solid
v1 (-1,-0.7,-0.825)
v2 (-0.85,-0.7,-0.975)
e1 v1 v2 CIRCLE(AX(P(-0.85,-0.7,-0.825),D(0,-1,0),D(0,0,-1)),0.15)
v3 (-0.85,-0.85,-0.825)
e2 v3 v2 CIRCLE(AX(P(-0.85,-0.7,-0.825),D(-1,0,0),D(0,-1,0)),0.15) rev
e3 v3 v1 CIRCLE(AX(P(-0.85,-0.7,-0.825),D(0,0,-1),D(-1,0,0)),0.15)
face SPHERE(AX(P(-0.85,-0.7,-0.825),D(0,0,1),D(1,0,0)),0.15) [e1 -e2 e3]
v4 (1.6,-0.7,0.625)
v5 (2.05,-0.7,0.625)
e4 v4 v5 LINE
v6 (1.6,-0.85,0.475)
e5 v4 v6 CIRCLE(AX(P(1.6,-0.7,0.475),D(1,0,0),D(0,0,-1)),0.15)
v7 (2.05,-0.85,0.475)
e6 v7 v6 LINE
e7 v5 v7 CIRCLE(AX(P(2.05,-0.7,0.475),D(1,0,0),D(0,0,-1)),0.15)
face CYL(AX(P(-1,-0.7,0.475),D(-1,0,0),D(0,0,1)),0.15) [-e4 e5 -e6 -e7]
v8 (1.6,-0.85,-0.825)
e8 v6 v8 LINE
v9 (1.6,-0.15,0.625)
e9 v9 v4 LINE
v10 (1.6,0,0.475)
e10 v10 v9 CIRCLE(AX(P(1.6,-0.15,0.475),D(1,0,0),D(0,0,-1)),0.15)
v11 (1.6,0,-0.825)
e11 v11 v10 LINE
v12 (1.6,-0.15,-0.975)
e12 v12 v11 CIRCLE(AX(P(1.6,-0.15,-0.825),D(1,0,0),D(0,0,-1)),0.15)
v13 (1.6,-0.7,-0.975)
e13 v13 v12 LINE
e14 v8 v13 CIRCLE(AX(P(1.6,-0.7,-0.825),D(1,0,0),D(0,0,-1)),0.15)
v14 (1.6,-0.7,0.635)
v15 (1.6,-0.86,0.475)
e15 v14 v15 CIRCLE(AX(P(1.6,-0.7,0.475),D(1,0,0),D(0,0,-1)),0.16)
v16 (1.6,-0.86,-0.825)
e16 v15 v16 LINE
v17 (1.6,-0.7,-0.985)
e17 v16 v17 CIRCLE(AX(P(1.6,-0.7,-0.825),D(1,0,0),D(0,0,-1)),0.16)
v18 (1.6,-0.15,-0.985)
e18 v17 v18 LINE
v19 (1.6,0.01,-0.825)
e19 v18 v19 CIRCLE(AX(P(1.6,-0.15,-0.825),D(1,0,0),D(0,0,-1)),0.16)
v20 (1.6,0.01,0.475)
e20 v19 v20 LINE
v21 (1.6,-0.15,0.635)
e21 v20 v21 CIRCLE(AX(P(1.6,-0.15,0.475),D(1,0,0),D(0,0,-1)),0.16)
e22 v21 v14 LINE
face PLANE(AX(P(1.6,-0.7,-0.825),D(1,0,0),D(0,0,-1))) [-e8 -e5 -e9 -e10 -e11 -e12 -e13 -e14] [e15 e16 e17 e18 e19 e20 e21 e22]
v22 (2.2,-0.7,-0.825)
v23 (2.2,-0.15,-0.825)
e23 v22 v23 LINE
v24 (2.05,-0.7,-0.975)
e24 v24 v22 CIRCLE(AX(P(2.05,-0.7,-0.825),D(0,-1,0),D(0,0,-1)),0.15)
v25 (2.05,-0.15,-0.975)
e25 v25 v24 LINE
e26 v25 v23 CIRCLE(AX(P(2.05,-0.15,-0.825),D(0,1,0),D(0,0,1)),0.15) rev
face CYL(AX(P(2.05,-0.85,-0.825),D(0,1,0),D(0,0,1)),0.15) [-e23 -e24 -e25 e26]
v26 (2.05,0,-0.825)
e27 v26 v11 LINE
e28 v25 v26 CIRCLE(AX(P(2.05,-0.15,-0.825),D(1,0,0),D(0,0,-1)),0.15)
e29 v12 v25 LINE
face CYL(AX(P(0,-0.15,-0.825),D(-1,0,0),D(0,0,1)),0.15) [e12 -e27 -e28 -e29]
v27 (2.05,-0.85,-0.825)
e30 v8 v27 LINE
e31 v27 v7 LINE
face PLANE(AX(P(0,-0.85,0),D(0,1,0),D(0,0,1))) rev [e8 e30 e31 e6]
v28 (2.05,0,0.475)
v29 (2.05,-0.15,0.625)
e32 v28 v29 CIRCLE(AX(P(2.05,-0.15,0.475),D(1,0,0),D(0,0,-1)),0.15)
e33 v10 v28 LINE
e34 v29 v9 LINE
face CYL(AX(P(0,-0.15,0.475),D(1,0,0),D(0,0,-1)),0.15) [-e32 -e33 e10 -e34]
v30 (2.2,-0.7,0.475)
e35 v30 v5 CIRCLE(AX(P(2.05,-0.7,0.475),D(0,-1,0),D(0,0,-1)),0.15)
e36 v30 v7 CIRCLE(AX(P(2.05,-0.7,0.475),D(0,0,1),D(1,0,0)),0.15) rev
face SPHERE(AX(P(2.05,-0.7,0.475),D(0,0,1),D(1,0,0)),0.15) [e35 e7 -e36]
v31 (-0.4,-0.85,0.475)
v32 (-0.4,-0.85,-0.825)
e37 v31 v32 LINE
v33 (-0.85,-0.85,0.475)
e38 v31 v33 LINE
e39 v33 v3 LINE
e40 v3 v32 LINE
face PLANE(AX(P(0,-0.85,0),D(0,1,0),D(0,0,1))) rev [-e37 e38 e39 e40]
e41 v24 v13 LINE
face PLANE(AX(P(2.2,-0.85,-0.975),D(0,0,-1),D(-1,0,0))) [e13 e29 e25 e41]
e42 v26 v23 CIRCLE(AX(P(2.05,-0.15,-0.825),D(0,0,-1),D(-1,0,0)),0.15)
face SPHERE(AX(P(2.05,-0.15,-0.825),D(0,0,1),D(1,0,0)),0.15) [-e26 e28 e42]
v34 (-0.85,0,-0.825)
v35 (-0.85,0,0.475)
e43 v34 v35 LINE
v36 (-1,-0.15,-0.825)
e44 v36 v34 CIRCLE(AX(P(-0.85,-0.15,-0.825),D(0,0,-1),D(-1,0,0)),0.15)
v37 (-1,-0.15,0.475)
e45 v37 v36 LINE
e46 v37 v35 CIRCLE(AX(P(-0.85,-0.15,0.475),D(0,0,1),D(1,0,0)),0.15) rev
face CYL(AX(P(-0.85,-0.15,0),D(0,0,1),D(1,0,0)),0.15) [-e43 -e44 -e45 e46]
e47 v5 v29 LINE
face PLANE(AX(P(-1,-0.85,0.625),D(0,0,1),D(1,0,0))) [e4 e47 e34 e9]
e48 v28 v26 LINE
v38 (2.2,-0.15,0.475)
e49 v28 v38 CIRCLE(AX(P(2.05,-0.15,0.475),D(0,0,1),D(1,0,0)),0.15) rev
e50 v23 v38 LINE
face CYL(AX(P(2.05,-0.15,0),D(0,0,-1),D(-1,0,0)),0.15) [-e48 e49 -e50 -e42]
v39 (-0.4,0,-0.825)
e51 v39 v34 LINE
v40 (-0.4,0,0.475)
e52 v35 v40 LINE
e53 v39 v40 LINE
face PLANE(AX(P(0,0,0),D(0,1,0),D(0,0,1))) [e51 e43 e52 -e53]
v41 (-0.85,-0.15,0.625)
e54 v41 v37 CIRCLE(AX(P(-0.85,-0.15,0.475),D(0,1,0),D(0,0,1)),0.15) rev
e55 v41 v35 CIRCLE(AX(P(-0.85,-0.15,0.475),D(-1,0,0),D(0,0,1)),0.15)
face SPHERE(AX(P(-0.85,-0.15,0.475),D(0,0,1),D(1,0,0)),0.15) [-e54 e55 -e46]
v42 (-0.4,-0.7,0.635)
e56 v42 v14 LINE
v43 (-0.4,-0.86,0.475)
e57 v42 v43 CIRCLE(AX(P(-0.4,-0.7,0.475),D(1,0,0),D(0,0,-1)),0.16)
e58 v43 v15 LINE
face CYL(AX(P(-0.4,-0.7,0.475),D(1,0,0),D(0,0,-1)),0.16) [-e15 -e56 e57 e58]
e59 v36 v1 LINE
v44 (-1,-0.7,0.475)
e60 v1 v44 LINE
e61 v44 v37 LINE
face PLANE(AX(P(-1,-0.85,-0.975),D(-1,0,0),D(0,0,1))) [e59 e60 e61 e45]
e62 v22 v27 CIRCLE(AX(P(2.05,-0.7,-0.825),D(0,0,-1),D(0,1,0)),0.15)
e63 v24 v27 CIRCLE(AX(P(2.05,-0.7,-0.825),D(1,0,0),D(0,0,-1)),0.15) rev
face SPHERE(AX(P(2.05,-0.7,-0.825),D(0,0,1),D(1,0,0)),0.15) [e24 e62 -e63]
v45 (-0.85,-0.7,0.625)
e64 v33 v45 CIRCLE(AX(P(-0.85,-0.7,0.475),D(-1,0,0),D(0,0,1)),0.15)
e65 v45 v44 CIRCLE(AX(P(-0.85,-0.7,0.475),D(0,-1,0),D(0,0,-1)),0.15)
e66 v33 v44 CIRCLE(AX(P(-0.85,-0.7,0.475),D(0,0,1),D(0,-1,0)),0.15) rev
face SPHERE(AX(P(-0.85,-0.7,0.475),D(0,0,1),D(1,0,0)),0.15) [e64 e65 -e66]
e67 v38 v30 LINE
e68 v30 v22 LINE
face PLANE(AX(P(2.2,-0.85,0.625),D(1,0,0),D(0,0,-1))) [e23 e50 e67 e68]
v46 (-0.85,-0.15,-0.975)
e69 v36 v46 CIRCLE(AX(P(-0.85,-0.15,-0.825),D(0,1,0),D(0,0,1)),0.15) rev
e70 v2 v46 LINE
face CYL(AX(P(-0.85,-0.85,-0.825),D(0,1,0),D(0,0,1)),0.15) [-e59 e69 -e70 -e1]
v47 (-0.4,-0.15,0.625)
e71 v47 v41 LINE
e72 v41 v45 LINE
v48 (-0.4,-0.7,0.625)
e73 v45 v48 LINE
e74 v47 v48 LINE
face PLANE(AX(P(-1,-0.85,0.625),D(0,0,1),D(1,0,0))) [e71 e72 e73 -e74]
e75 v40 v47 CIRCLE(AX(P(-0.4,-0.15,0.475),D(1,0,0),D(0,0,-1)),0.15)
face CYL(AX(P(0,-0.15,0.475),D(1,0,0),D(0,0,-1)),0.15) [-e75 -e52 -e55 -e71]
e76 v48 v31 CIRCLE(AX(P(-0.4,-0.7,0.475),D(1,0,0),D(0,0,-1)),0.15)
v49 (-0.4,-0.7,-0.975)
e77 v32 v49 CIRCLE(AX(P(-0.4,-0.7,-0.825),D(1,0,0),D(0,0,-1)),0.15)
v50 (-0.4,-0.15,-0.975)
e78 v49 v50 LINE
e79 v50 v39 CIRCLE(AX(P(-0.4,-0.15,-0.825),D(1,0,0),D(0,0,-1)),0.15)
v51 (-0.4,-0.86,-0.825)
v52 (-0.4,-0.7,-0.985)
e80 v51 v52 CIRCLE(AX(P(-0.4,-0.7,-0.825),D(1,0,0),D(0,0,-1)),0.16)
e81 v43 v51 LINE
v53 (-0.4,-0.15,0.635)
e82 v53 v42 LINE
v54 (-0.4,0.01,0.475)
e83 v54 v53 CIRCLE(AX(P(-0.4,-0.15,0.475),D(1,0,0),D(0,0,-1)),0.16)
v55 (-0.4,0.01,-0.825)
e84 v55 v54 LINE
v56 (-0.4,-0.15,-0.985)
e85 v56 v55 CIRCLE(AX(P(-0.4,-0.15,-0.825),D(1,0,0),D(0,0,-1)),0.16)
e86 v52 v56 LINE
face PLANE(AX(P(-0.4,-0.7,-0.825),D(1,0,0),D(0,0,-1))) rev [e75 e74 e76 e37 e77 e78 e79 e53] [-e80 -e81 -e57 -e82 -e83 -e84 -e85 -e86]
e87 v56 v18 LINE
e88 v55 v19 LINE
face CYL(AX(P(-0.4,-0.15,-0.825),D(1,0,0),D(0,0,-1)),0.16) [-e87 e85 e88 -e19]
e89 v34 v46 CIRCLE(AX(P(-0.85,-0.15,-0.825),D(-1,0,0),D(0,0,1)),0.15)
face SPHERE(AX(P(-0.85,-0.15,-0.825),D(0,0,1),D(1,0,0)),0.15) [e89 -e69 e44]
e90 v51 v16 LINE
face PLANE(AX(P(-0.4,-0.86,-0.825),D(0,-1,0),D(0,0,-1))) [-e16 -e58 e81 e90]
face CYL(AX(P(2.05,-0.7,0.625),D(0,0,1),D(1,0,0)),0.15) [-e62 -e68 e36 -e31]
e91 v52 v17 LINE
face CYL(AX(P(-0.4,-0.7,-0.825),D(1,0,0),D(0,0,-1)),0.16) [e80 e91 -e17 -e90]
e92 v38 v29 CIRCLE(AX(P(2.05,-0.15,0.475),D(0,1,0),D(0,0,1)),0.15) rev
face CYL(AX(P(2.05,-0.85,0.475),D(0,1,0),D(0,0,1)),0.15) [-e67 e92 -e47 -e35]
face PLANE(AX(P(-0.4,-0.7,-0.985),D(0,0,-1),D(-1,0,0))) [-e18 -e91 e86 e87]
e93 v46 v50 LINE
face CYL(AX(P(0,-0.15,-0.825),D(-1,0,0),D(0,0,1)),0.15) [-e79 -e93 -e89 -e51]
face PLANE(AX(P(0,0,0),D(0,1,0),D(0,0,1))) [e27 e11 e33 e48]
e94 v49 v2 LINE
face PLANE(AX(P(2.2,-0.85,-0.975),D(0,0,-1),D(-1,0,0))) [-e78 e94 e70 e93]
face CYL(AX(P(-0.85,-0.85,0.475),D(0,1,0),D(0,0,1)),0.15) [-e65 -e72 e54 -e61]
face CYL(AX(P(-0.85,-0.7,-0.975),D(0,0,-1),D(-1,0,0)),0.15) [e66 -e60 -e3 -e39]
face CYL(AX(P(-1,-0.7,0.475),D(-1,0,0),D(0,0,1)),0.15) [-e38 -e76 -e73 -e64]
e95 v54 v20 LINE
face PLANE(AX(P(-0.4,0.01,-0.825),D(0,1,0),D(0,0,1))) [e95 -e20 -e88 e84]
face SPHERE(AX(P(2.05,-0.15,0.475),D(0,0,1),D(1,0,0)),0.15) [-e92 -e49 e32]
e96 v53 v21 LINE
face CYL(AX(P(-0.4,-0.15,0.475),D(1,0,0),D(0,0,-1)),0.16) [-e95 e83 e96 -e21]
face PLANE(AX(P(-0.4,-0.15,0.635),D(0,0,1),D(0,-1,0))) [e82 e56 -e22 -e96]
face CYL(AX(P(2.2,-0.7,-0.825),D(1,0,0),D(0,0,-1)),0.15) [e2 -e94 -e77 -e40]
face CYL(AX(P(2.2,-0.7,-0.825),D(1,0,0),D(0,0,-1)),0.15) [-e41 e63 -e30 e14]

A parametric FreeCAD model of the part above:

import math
import FreeCAD as App
import Part
import Sketcher
from FreeCAD import Vector


def add_polygon(sketch, points):
    """Adds a closed chain of lines whose ends are joined by coincident constraints."""
    first, n = sketch.GeometryCount, len(points)
    for a, b in zip(points, points[1:] + points[:1]):
        sketch.addGeometry(Part.LineSegment(App.Vector(*a, 0), App.Vector(*b, 0)), False)
    for i in range(n):
        sketch.addConstraint(Sketcher.Constraint("Coincident", first + i, 2, first + (i + 1) % n, 1))

doc = App.newDocument("Part")
body = doc.addObject("PartDesign::Body", "Body")

# Sketch on XZ plane
sketch1 = body.newObject("Sketcher::SketchObject", "Sketch")
sketch1.AttachmentSupport = (doc.getObject("XZ_Plane"), [""])
sketch1.MapMode = "FlatFace"
add_polygon(sketch1, [(-1, -0.975), (-1, 0.625), (2.2, 0.625), (2.2, -0.975)])  # lines 0-3
sketch1.addConstraint([
    Sketcher.Constraint("Vertical", 0),
    Sketcher.Constraint("Horizontal", 1),
    Sketcher.Constraint("Vertical", 2),
    Sketcher.Constraint("Horizontal", 3),
    Sketcher.Constraint("DistanceX", 1, 1, 1, 2, 3.2),
    Sketcher.Constraint("DistanceY", 0, 1, 0, 2, 1.6),
    Sketcher.Constraint("DistanceX", 0, 2, -1, 1, 1.0),
    Sketcher.Constraint("DistanceY", -1, 1, 0, 2, 0.625),
])
pad1 = body.newObject("PartDesign::Pad", "Pad")
pad1.Profile = sketch1
pad1.Length = 0.85
doc.recompute()

fillet = body.newObject("PartDesign::Fillet", "Fillet")
fillet.Base = (pad1, ["Edge1"])
fillet.UseAllEdges = True
fillet.Radius = 0.15

# Sketch on YZ plane
sketch2 = body.newObject("Sketcher::SketchObject", "Sketch001")
sketch2.AttachmentSupport = (doc.getObject("YZ_Plane"), [""])
sketch2.MapMode = "FlatFace"
sketch2.AttachmentOffset = App.Placement(Vector(0, 0, 0.6), App.Rotation())
sketch2.addGeometry([
    Part.LineSegment(Vector(-0.7, -0.985, 0), Vector(-0.15, -0.985, 0)),  # 0
    Part.ArcOfCircle(Part.Circle(Vector(-0.15, -0.825, 0), Vector(0, 0, 1), 0.16), math.radians(-90), math.radians(0)),  # 1
    Part.LineSegment(Vector(0.01, -0.825, 0), Vector(0.01, 0.475, 0)),  # 2
    Part.ArcOfCircle(Part.Circle(Vector(-0.15, 0.475, 0), Vector(0, 0, 1), 0.16), math.radians(0), math.radians(90)),  # 3
    Part.LineSegment(Vector(-0.15, 0.635, 0), Vector(-0.7, 0.635, 0)),  # 4
    Part.ArcOfCircle(Part.Circle(Vector(-0.7, 0.475, 0), Vector(0, 0, 1), 0.16), math.radians(90), math.radians(180)),  # 5
    Part.LineSegment(Vector(-0.86, 0.475, 0), Vector(-0.86, -0.825, 0)),  # 6
    Part.ArcOfCircle(Part.Circle(Vector(-0.7, -0.825, 0), Vector(0, 0, 1), 0.16), math.radians(180), math.radians(270)),  # 7
    Part.LineSegment(Vector(-0.15, -0.975, 0), Vector(-0.7, -0.975, 0)),  # 8
    Part.ArcOfCircle(Part.Circle(Vector(-0.7, -0.825, 0), Vector(0, 0, 1), 0.15), math.radians(-180), math.radians(-90)),  # 9
    Part.LineSegment(Vector(-0.85, -0.825, 0), Vector(-0.85, 0.475, 0)),  # 10
    Part.ArcOfCircle(Part.Circle(Vector(-0.7, 0.475, 0), Vector(0, 0, 1), 0.15), math.radians(90), math.radians(180)),  # 11
    Part.LineSegment(Vector(-0.7, 0.625, 0), Vector(-0.15, 0.625, 0)),  # 12
    Part.ArcOfCircle(Part.Circle(Vector(-0.15, 0.475, 0), Vector(0, 0, 1), 0.15), math.radians(0), math.radians(90)),  # 13
    Part.LineSegment(Vector(0, 0.475, 0), Vector(0, -0.825, 0)),  # 14
    Part.ArcOfCircle(Part.Circle(Vector(-0.15, -0.825, 0), Vector(0, 0, 1), 0.15), math.radians(-90), math.radians(0)),  # 15
], False)
sketch2.addConstraint([
    Sketcher.Constraint("Tangent", 0, 2, 1, 1),
    Sketcher.Constraint("Tangent", 1, 2, 2, 1),
    Sketcher.Constraint("Tangent", 2, 2, 3, 1),
    Sketcher.Constraint("Tangent", 3, 2, 4, 1),
    Sketcher.Constraint("Tangent", 4, 2, 5, 1),
    Sketcher.Constraint("Tangent", 5, 2, 6, 1),
    Sketcher.Constraint("Tangent", 6, 2, 7, 1),
    Sketcher.Constraint("Tangent", 7, 2, 0, 1),
    Sketcher.Constraint("Tangent", 8, 2, 9, 2),
    Sketcher.Constraint("Tangent", 9, 1, 10, 1),
    Sketcher.Constraint("Tangent", 10, 2, 11, 2),
    Sketcher.Constraint("Tangent", 11, 1, 12, 1),
    Sketcher.Constraint("Tangent", 12, 2, 13, 2),
    Sketcher.Constraint("Tangent", 13, 1, 14, 1),
    Sketcher.Constraint("Tangent", 14, 2, 15, 2),
    Sketcher.Constraint("Tangent", 15, 1, 8, 1),
    Sketcher.Constraint("Horizontal", 0),
    Sketcher.Constraint("Vertical", 2),
    Sketcher.Constraint("Horizontal", 4),
    Sketcher.Constraint("Vertical", 6),
    Sketcher.Constraint("Horizontal", 8),
    Sketcher.Constraint("Vertical", 10),
    Sketcher.Constraint("Horizontal", 12),
    Sketcher.Constraint("Vertical", 14),
    Sketcher.Constraint("Coincident", 9, 3, 7, 3),
    Sketcher.Constraint("Coincident", 11, 3, 5, 3),
    Sketcher.Constraint("Coincident", 13, 3, 3, 3),
    Sketcher.Constraint("Equal", 1, 3),
    Sketcher.Constraint("Equal", 3, 5),
    Sketcher.Constraint("Equal", 5, 7),
    Sketcher.Constraint("Equal", 13, 15),
    Sketcher.Constraint("PointOnObject", 13, 1, -2),
    Sketcher.Constraint("Radius", 1, 0.16),
    Sketcher.Constraint("Radius", 9, 0.15),
    Sketcher.Constraint("DistanceY", 2, 1, 2, 2, 1.3),
    Sketcher.Constraint("DistanceX", 0, 1, 0, 2, 0.55),
    Sketcher.Constraint("DistanceY", 1, 3, -1, 1, 0.825),
])
pad2 = body.newObject("PartDesign::Pad", "Pad001")
pad2.Profile = sketch2
pad2.Type = "TwoLengths"
pad2.Length = 1
pad2.Length2 = 1

doc.recompute()
